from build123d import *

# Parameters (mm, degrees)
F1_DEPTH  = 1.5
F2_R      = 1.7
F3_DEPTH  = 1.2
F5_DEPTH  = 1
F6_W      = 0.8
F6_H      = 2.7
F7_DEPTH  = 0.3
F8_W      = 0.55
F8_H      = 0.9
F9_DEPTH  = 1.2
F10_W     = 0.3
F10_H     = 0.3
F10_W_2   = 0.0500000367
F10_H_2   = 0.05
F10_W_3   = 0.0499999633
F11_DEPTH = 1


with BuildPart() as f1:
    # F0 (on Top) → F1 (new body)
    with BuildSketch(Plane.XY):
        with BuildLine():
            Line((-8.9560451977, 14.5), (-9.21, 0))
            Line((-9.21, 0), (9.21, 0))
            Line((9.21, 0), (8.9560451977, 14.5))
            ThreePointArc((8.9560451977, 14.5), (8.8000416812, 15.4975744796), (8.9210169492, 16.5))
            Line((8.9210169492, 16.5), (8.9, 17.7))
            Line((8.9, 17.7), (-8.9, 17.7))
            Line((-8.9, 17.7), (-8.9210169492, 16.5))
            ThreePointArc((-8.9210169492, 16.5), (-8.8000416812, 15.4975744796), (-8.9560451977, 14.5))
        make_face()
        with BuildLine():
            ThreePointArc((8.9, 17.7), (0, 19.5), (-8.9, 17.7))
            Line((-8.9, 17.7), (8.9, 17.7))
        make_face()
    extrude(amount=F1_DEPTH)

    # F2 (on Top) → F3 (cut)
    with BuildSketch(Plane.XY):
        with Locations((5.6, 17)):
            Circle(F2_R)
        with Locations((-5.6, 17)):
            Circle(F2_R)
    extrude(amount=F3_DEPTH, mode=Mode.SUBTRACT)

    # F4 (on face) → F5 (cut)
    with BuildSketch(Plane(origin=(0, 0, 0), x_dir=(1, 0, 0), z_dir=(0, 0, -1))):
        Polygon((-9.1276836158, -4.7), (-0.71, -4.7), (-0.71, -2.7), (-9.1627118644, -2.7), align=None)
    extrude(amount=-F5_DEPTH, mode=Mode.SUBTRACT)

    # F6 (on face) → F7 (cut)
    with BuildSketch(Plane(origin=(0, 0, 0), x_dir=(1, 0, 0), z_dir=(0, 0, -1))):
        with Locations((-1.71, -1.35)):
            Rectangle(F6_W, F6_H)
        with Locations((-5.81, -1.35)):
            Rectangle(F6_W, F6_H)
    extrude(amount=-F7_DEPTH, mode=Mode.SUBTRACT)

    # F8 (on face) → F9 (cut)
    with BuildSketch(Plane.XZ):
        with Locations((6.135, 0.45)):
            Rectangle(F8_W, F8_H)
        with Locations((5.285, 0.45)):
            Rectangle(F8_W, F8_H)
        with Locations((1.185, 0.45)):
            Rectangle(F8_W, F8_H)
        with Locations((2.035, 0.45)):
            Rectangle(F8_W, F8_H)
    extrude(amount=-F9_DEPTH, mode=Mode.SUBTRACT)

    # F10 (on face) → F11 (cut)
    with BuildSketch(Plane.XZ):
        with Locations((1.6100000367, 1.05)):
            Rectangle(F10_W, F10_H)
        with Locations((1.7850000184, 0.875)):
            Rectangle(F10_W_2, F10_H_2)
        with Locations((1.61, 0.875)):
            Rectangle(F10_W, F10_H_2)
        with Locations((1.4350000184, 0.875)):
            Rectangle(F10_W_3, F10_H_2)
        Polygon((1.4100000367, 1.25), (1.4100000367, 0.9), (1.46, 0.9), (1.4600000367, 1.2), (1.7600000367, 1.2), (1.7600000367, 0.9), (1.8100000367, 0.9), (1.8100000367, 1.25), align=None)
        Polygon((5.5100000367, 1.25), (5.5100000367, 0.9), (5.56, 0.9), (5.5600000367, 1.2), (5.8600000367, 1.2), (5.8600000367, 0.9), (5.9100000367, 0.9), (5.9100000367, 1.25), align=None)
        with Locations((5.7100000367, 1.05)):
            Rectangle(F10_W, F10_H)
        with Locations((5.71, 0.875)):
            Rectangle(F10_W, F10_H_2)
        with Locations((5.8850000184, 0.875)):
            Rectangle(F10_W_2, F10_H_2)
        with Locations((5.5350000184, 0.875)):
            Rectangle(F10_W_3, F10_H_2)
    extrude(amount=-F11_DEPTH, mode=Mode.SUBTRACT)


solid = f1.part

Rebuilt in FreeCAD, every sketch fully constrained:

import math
import FreeCAD as App
import Part
import Sketcher
from FreeCAD import Vector

doc = App.newDocument("Part")
body = doc.addObject("PartDesign::Body", "Body")

sketch1 = body.newObject("Sketcher::SketchObject", "Sketch")
sketch1.AttachmentSupport = (doc.getObject("XY_Plane"), [""])
sketch1.MapMode = "FlatFace"
sketch1.addGeometry([
    Part.LineSegment(Vector(-8.956045, 14.5, 0), Vector(-9.21, 0, 0)),
    Part.LineSegment(Vector(-9.21, 0, 0), Vector(9.21, 0, 0)),
    Part.LineSegment(Vector(9.21, 0, 0), Vector(8.956045, 14.5, 0)),
    Part.ArcOfCircle(Part.Circle(Vector(12.479671, 15.56202, 0), Vector(0, 0, 1), 3.680194), math.radians(165.233972), math.radians(196.772793)),
    Part.LineSegment(Vector(8.921017, 16.5, 0), Vector(8.9, 17.7, 0)),
    Part.ArcOfCircle(Part.Circle(Vector(0, -3.402778, 0), Vector(0, 0, 1), 22.902778), math.radians(67.132637), math.radians(112.867363)),
    Part.LineSegment(Vector(-8.9, 17.7, 0), Vector(-8.921017, 16.5, 0)),
    Part.ArcOfCircle(Part.Circle(Vector(-12.479671, 15.56202, 0), Vector(0, 0, 1), 3.680194), math.radians(-16.772793), math.radians(14.766028)),
], False)
sketch1.addConstraint([
    Sketcher.Constraint("Coincident", 0, 2, 1, 1),
    Sketcher.Constraint("Coincident", 1, 2, 2, 1),
    Sketcher.Constraint("Coincident", 2, 2, 3, 2),
    Sketcher.Constraint("Coincident", 3, 1, 4, 1),
    Sketcher.Constraint("Coincident", 4, 2, 5, 1),
    Sketcher.Constraint("Coincident", 5, 2, 6, 1),
    Sketcher.Constraint("Coincident", 6, 2, 7, 2),
    Sketcher.Constraint("Coincident", 7, 1, 0, 1),
    Sketcher.Constraint("Horizontal", 1),
    Sketcher.Constraint("Equal", 3, 7),
    Sketcher.Constraint("Symmetric", 0, 2, 1, 2, -1, 1),
    Sketcher.Constraint("Symmetric", 3, 3, 7, 3, -2),
    Sketcher.Constraint("Symmetric", 4, 2, 5, 2, -2),
    Sketcher.Constraint("Parallel", 2, 4),
    Sketcher.Constraint("Parallel", 0, 6),
    Sketcher.Constraint("Horizontal", 3, 1, 6, 2),
    Sketcher.Constraint("DistanceY", 2, 2, 3, 1, 2.0),
    Sketcher.Constraint("DistanceX", 1, 1, 1, 2, 18.42),
    Sketcher.Constraint("DistanceY", -1, 1, 2, 2, 14.5),
    Sketcher.Constraint("DistanceX", -1, 1, 4, 2, 8.9),
    Sketcher.Constraint("DistanceY", -1, 1, 4, 2, 17.7),
    Sketcher.Constraint("Radius", 3, 3.680194),
    Sketcher.Constraint("Radius", 5, 22.902778),
    Sketcher.Constraint("DistanceX", -1, 1, 3, 3, 12.479671),
])
pad1 = body.newObject("PartDesign::Pad", "Pad")
pad1.Profile = sketch1
pad1.Length = 1.5

sketch2 = body.newObject("Sketcher::SketchObject", "Sketch001")
sketch2.AttachmentSupport = (doc.getObject("XY_Plane"), [""])
sketch2.MapMode = "FlatFace"
sketch2.addGeometry([
    Part.Circle(Vector(5.6, 17, 0), Vector(0, 0, 1), 1.7),
    Part.Circle(Vector(-5.6, 17, 0), Vector(0, 0, 1), 1.7),
], False)
sketch2.addConstraint([
    Sketcher.Constraint("Equal", 0, 1),
    Sketcher.Constraint("Symmetric", 0, 3, 1, 3, -2),
    Sketcher.Constraint("Diameter", 0, 3.4),
    Sketcher.Constraint("DistanceY", -1, 1, 0, 3, 17.0),
    Sketcher.Constraint("DistanceX", -1, 1, 0, 3, 5.6),
])
pocket1 = body.newObject("PartDesign::Pocket", "Pocket")
pocket1.Profile = sketch2
pocket1.Length = 1.2
pocket1.Reversed = True

sketch3 = body.newObject("Sketcher::SketchObject", "Sketch002")
sketch3.AttachmentSupport = (doc.getObject("XY_Plane"), [""])
sketch3.MapMode = "FlatFace"
sketch3.addGeometry([
    Part.LineSegment(Vector(-9.127684, 4.7, 0), Vector(-0.71, 4.7, 0)),
    Part.LineSegment(Vector(-0.71, 4.7, 0), Vector(-0.71, 2.7, 0)),
    Part.LineSegment(Vector(-0.71, 2.7, 0), Vector(-9.162712, 2.7, 0)),
    Part.LineSegment(Vector(-9.162712, 2.7, 0), Vector(-9.127684, 4.7, 0)),
], False)
sketch3.addConstraint([
    Sketcher.Constraint("Coincident", 0, 2, 1, 1),
    Sketcher.Constraint("Coincident", 1, 2, 2, 1),
    Sketcher.Constraint("Coincident", 2, 2, 3, 1),
    Sketcher.Constraint("Coincident", 3, 2, 0, 1),
    Sketcher.Constraint("Horizontal", 0),
    Sketcher.Constraint("Vertical", 1),
    Sketcher.Constraint("Horizontal", 2),
    Sketcher.Constraint("DistanceY", 1, 2, 1, 1, 2.0),
    Sketcher.Constraint("DistanceY", -1, 1, 0, 2, 4.7),
    Sketcher.Constraint("DistanceX", 0, 2, -1, 1, 0.71),
    Sketcher.Constraint("DistanceX", 2, 2, 2, 1, 8.452712),
    Sketcher.Constraint("DistanceX", 0, 1, 0, 2, 8.417684),
])
pocket2 = body.newObject("PartDesign::Pocket", "Pocket001")
pocket2.Profile = sketch3
pocket2.Length = 1
pocket2.Reversed = True

sketch4 = body.newObject("Sketcher::SketchObject", "Sketch003")
sketch4.AttachmentSupport = (doc.getObject("XY_Plane"), [""])
sketch4.MapMode = "FlatFace"
sketch4.addGeometry([
    Part.LineSegment(Vector(-2.11, 0, 0), Vector(-2.11, 2.7, 0)),
    Part.LineSegment(Vector(-2.11, 2.7, 0), Vector(-1.31, 2.7, 0)),
    Part.LineSegment(Vector(-1.31, 2.7, 0), Vector(-1.31, 0, 0)),
    Part.LineSegment(Vector(-1.31, 0, 0), Vector(-2.11, 0, 0)),
    Part.LineSegment(Vector(-6.21, 0, 0), Vector(-6.21, 2.7, 0)),
    Part.LineSegment(Vector(-6.21, 2.7, 0), Vector(-5.41, 2.7, 0)),
    Part.LineSegment(Vector(-5.41, 2.7, 0), Vector(-5.41, 0, 0)),
    Part.LineSegment(Vector(-5.41, 0, 0), Vector(-6.21, 0, 0)),
], False)
sketch4.addConstraint([
    Sketcher.Constraint("Coincident", 0, 2, 1, 1),
    Sketcher.Constraint("Coincident", 1, 2, 2, 1),
    Sketcher.Constraint("Coincident", 2, 2, 3, 1),
    Sketcher.Constraint("Coincident", 3, 2, 0, 1),
    Sketcher.Constraint("Coincident", 4, 2, 5, 1),
    Sketcher.Constraint("Coincident", 5, 2, 6, 1),
    Sketcher.Constraint("Coincident", 6, 2, 7, 1),
    Sketcher.Constraint("Coincident", 7, 2, 4, 1),
    Sketcher.Constraint("Vertical", 0),
    Sketcher.Constraint("Horizontal", 1),
    Sketcher.Constraint("Vertical", 2),
    Sketcher.Constraint("Horizontal", 3),
    Sketcher.Constraint("Vertical", 4),
    Sketcher.Constraint("Horizontal", 5),
    Sketcher.Constraint("Vertical", 6),
    Sketcher.Constraint("Horizontal", 7),
    Sketcher.Constraint("PointOnObject", 2, 2, -1),
    Sketcher.Constraint("PointOnObject", 6, 2, -1),
    Sketcher.Constraint("Horizontal", 1, 2, 4, 2),
    Sketcher.Constraint("Equal", 3, 5),
    Sketcher.Constraint("DistanceX", 1, 1, 1, 2, 0.8),
    Sketcher.Constraint("DistanceY", 0, 1, 0, 2, 2.7),
    Sketcher.Constraint("DistanceX", 4, 2, 0, 2, 4.1),
    Sketcher.Constraint("DistanceX", 0, 2, -1, 1, 2.11),
])
pocket3 = body.newObject("PartDesign::Pocket", "Pocket002")
pocket3.Profile = sketch4
pocket3.Length = 0.3
pocket3.Reversed = True

sketch5 = body.newObject("Sketcher::SketchObject", "Sketch004")
sketch5.AttachmentSupport = (doc.getObject("XZ_Plane"), [""])
sketch5.MapMode = "FlatFace"
sketch5.addGeometry([
    Part.LineSegment(Vector(5.86, 0.9, 0), Vector(5.86, 0, 0)),
    Part.LineSegment(Vector(5.86, 0, 0), Vector(6.41, 0, 0)),
    Part.LineSegment(Vector(6.41, 0, 0), Vector(6.41, 0.9, 0)),
    Part.LineSegment(Vector(6.41, 0.9, 0), Vector(5.86, 0.9, 0)),
    Part.LineSegment(Vector(5.01, 0.9, 0), Vector(5.01, 0, 0)),
    Part.LineSegment(Vector(5.01, 0, 0), Vector(5.56, 0, 0)),
    Part.LineSegment(Vector(5.56, 0, 0), Vector(5.56, 0.9, 0)),
    Part.LineSegment(Vector(5.56, 0.9, 0), Vector(5.01, 0.9, 0)),
    Part.LineSegment(Vector(0.91, 0.9, 0), Vector(0.91, 0, 0)),
    Part.LineSegment(Vector(0.91, 0, 0), Vector(1.46, 0, 0)),
    Part.LineSegment(Vector(1.46, 0, 0), Vector(1.46, 0.9, 0)),
    Part.LineSegment(Vector(1.46, 0.9, 0), Vector(0.91, 0.9, 0)),
    Part.LineSegment(Vector(1.76, 0.9, 0), Vector(1.76, 0, 0)),
    Part.LineSegment(Vector(1.76, 0, 0), Vector(2.31, 0, 0)),
    Part.LineSegment(Vector(2.31, 0, 0), Vector(2.31, 0.9, 0)),
    Part.LineSegment(Vector(2.31, 0.9, 0), Vector(1.76, 0.9, 0)),
], False)
sketch5.addConstraint([
    Sketcher.Constraint("Coincident", 0, 2, 1, 1),
    Sketcher.Constraint("Coincident", 1, 2, 2, 1),
    Sketcher.Constraint("Coincident", 2, 2, 3, 1),
    Sketcher.Constraint("Coincident", 3, 2, 0, 1),
    Sketcher.Constraint("Coincident", 4, 2, 5, 1),
    Sketcher.Constraint("Coincident", 5, 2, 6, 1),
    Sketcher.Constraint("Coincident", 6, 2, 7, 1),
    Sketcher.Constraint("Coincident", 7, 2, 4, 1),
    Sketcher.Constraint("Coincident", 8, 2, 9, 1),
    Sketcher.Constraint("Coincident", 9, 2, 10, 1),
    Sketcher.Constraint("Coincident", 10, 2, 11, 1),
    Sketcher.Constraint("Coincident", 11, 2, 8, 1),
    Sketcher.Constraint("Coincident", 12, 2, 13, 1),
    Sketcher.Constraint("Coincident", 13, 2, 14, 1),
    Sketcher.Constraint("Coincident", 14, 2, 15, 1),
    Sketcher.Constraint("Coincident", 15, 2, 12, 1),
    Sketcher.Constraint("Vertical", 0),
    Sketcher.Constraint("Horizontal", 1),
    Sketcher.Constraint("Vertical", 2),
    Sketcher.Constraint("Horizontal", 3),
    Sketcher.Constraint("Vertical", 4),
    Sketcher.Constraint("Horizontal", 5),
    Sketcher.Constraint("Vertical", 6),
    Sketcher.Constraint("Horizontal", 7),
    Sketcher.Constraint("Vertical", 8),
    Sketcher.Constraint("Horizontal", 9),
    Sketcher.Constraint("Vertical", 10),
    Sketcher.Constraint("Horizontal", 11),
    Sketcher.Constraint("Vertical", 12),
    Sketcher.Constraint("Horizontal", 13),
    Sketcher.Constraint("Vertical", 14),
    Sketcher.Constraint("Horizontal", 15),
    Sketcher.Constraint("PointOnObject", 0, 2, -1),
    Sketcher.Constraint("PointOnObject", 4, 2, -1),
    Sketcher.Constraint("PointOnObject", 8, 2, -1),
    Sketcher.Constraint("PointOnObject", 12, 2, -1),
    Sketcher.Constraint("Horizontal", 3, 2, 6, 2),
    Sketcher.Constraint("Horizontal", 7, 2, 10, 2),
    Sketcher.Constraint("Horizontal", 11, 2, 14, 2),
    Sketcher.Constraint("Equal", 3, 5),
    Sketcher.Constraint("Equal", 7, 9),
    Sketcher.Constraint("Equal", 11, 13),
    Sketcher.Constraint("DistanceY", 0, 2, 0, 1, 0.9),
    Sketcher.Constraint("DistanceX", 1, 1, 1, 2, 0.55),
    Sketcher.Constraint("DistanceX", 4, 2, 1, 2, 1.4),
    Sketcher.Constraint("DistanceX", 8, 2, 4, 2, 4.1),
    Sketcher.Constraint("DistanceX", 9, 2, 12, 2, 0.3),
    Sketcher.Constraint("DistanceX", -1, 1, 0, 2, 5.86),
])
pocket4 = body.newObject("PartDesign::Pocket", "Pocket003")
pocket4.Profile = sketch5
pocket4.Length = 1.2

sketch6 = body.newObject("Sketcher::SketchObject", "Sketch005")
sketch6.AttachmentSupport = (doc.getObject("XZ_Plane"), [""])
sketch6.MapMode = "FlatFace"
sketch6.addGeometry([
    Part.LineSegment(Vector(1.41, 0.9, 0), Vector(1.41, 0.85, 0)),
    Part.LineSegment(Vector(1.41, 0.85, 0), Vector(1.81, 0.85, 0)),
    Part.LineSegment(Vector(1.81, 0.85, 0), Vector(1.81, 0.9, 0)),
    Part.LineSegment(Vector(1.81, 0.9, 0), Vector(1.81, 1.25, 0)),
    Part.LineSegment(Vector(1.81, 1.25, 0), Vector(1.41, 1.25, 0)),
    Part.LineSegment(Vector(1.41, 1.25, 0), Vector(1.41, 0.9, 0)),
    Part.LineSegment(Vector(5.51, 1.25, 0), Vector(5.51, 0.85, 0)),
    Part.LineSegment(Vector(5.51, 0.85, 0), Vector(5.91, 0.85, 0)),
    Part.LineSegment(Vector(5.91, 0.85, 0), Vector(5.91, 0.9, 0)),
    Part.LineSegment(Vector(5.91, 0.9, 0), Vector(5.91, 1.25, 0)),
    Part.LineSegment(Vector(5.91, 1.25, 0), Vector(5.51, 1.25, 0)),
], False)
sketch6.addConstraint([
    Sketcher.Constraint("Coincident", 0, 2, 1, 1),
    Sketcher.Constraint("Coincident", 1, 2, 2, 1),
    Sketcher.Constraint("Coincident", 2, 2, 3, 1),
    Sketcher.Constraint("Coincident", 3, 2, 4, 1),
    Sketcher.Constraint("Coincident", 4, 2, 5, 1),
    Sketcher.Constraint("Coincident", 5, 2, 0, 1),
    Sketcher.Constraint("Coincident", 6, 2, 7, 1),
    Sketcher.Constraint("Coincident", 7, 2, 8, 1),
    Sketcher.Constraint("Coincident", 8, 2, 9, 1),
    Sketcher.Constraint("Coincident", 9, 2, 10, 1),
    Sketcher.Constraint("Coincident", 10, 2, 6, 1),
    Sketcher.Constraint("Vertical", 0),
    Sketcher.Constraint("Horizontal", 1),
    Sketcher.Constraint("Vertical", 2),
    Sketcher.Constraint("Vertical", 3),
    Sketcher.Constraint("Horizontal", 4),
    Sketcher.Constraint("Vertical", 5),
    Sketcher.Constraint("Vertical", 6),
    Sketcher.Constraint("Horizontal", 7),
    Sketcher.Constraint("Vertical", 8),
    Sketcher.Constraint("Vertical", 9),
    Sketcher.Constraint("Horizontal", 10),
    Sketcher.Constraint("Horizontal", 2, 2, 5, 2),
    Sketcher.Constraint("Horizontal", 1, 2, 6, 2),
    Sketcher.Constraint("Horizontal", 5, 2, 8, 2),
    Sketcher.Constraint("Horizontal", 4, 2, 9, 2),
    Sketcher.Constraint("Equal", 4, 7),
    Sketcher.Constraint("Equal", 10, 6),
    Sketcher.Constraint("DistanceX", 1, 1, 1, 2, 0.4),
    Sketcher.Constraint("DistanceY", 0, 2, 0, 1, 0.05),
    Sketcher.Constraint("DistanceY", -1, 1, 2, 2, 0.9),
    Sketcher.Constraint("DistanceX", 1, 2, 6, 2, 3.7),
    Sketcher.Constraint("DistanceX", -1, 1, 0, 2, 1.41),
])
pocket5 = body.newObject("PartDesign::Pocket", "Pocket004")
pocket5.Profile = sketch6
pocket5.Length = 1

doc.recompute()
